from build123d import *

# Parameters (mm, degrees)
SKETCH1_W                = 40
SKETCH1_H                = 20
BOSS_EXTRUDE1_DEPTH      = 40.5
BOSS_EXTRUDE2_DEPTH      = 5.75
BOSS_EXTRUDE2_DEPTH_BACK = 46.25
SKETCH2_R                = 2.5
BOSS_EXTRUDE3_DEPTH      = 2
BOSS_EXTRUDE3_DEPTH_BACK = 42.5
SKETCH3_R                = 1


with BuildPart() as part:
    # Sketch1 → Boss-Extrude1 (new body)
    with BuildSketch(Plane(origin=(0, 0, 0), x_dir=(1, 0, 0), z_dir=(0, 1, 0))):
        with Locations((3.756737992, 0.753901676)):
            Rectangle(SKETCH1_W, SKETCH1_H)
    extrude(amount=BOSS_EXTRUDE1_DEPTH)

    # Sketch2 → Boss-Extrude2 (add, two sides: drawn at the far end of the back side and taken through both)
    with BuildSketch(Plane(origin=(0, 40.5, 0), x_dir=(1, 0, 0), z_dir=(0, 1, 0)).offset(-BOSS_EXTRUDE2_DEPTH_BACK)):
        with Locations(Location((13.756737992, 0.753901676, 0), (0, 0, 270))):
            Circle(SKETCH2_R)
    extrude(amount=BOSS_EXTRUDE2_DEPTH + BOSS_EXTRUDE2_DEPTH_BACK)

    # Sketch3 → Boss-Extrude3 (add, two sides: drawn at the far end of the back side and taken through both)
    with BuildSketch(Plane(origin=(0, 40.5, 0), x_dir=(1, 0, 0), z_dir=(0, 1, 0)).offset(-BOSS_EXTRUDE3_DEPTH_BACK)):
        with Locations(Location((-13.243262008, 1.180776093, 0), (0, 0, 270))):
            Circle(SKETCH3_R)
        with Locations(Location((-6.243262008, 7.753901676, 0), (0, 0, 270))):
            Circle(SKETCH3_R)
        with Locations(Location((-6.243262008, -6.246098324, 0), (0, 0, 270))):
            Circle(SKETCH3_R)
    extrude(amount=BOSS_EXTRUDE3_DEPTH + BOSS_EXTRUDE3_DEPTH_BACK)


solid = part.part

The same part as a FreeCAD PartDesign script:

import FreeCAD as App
import Part
import Sketcher

doc = App.newDocument("Part")
body = doc.addObject("PartDesign::Body", "Body")

sketch1 = body.newObject("Sketcher::SketchObject", "Sketch")
sketch1.AttachmentSupport = (doc.getObject("XZ_Plane"), [""])
sketch1.MapMode = "FlatFace"
sketch1.addGeometry([
    Part.LineSegment(App.Vector(-16, -11, 0), App.Vector(-16, 9, 0)),
    Part.LineSegment(App.Vector(-16, 9, 0), App.Vector(24, 9, 0)),
    Part.LineSegment(App.Vector(24, 9, 0), App.Vector(24, -11, 0)),
    Part.LineSegment(App.Vector(24, -11, 0), App.Vector(-16, -11, 0)),
], False)
sketch1.addConstraint([
    Sketcher.Constraint("Coincident", 0, 2, 1, 1),
    Sketcher.Constraint("Coincident", 1, 2, 2, 1),
    Sketcher.Constraint("Coincident", 2, 2, 3, 1),
    Sketcher.Constraint("Coincident", 3, 2, 0, 1),
    Sketcher.Constraint("Vertical", 0),
    Sketcher.Constraint("Horizontal", 1),
    Sketcher.Constraint("Vertical", 2),
    Sketcher.Constraint("Horizontal", 3),
    Sketcher.Constraint("DistanceX", 1, 1, 1, 2, 40.0),
    Sketcher.Constraint("DistanceY", 0, 1, 0, 2, 20.0),
    Sketcher.Constraint("DistanceY", -1, 1, 0, 2, 9.246098),
    Sketcher.Constraint("DistanceX", 0, 2, -1, 1, 16.243262),
])
pad1 = body.newObject("PartDesign::Pad", "Pad")
pad1.Profile = sketch1
pad1.Length = 40.5
pad1.Reversed = True

sketch2 = body.newObject("Sketcher::SketchObject", "Sketch001")
sketch2.AttachmentSupport = (doc.getObject("XZ_Plane"), [""])
sketch2.MapMode = "FlatFace"
sketch2.AttachmentOffset = App.Placement(App.Vector(0, 0, -40.5), App.Rotation())
sketch2.addGeometry(Part.Circle(App.Vector(13.8, -0.8, 0), App.Vector(0, 0, 1), 2.5), False)
sketch2.addConstraint([
    Sketcher.Constraint("Diameter", 0, 5.0),
    Sketcher.Constraint("DistanceY", 0, 3, -1, 1, 0.753902),
    Sketcher.Constraint("DistanceX", -1, 1, 0, 3, 13.756738),
])
pad2 = body.newObject("PartDesign::Pad", "Pad001")
pad2.Profile = sketch2
pad2.Type = "TwoLengths"
pad2.Length = 5.75
pad2.Length2 = 46.25
pad2.Reversed = True

sketch3 = body.newObject("Sketcher::SketchObject", "Sketch002")
sketch3.AttachmentSupport = (doc.getObject("XZ_Plane"), [""])
sketch3.MapMode = "FlatFace"
sketch3.AttachmentOffset = App.Placement(App.Vector(0, 0, -40.5), App.Rotation())
sketch3.addGeometry([
    Part.Circle(App.Vector(-13.2, -1.2, 0), App.Vector(0, 0, 1), 1),
    Part.Circle(App.Vector(-6.2, -7.8, 0), App.Vector(0, 0, 1), 1),
    Part.Circle(App.Vector(-6.2, 6.2, 0), App.Vector(0, 0, 1), 1),
], False)
sketch3.addConstraint([
    Sketcher.Constraint("Equal", 0, 1),
    Sketcher.Constraint("Equal", 1, 2),
    Sketcher.Constraint("Vertical", 1, 3, 2, 3),
    Sketcher.Constraint("Diameter", 0, 2.0),
    Sketcher.Constraint("DistanceX", 0, 3, 1, 3, 7.0),
    Sketcher.Constraint("DistanceY", 1, 3, 2, 3, 14.0),
    Sketcher.Constraint("DistanceY", 1, 3, -1, 1, 7.753902),
    Sketcher.Constraint("DistanceX", 0, 3, -1, 1, 13.243262),
    Sketcher.Constraint("DistanceY", 0, 3, -1, 1, 1.180776),
])
pad3 = body.newObject("PartDesign::Pad", "Pad002")
pad3.Profile = sketch3
pad3.Type = "TwoLengths"
pad3.Length = 2
pad3.Length2 = 42.5
pad3.Reversed = True

doc.recompute()
